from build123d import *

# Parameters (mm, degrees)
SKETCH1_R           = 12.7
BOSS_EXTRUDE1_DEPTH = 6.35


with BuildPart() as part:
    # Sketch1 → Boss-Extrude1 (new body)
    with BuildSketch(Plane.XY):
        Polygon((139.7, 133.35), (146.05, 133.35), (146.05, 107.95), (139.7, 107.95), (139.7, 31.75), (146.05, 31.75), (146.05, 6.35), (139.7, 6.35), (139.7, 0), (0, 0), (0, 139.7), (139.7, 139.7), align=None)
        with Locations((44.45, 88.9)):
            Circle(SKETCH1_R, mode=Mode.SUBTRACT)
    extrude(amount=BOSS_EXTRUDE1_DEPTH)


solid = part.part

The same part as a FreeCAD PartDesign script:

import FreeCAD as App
import Part
import Sketcher

V = App.Vector
Q = App.Units.Quantity


def add_polygon(sketch, points):
    """Adds a closed chain of lines whose ends are joined by coincident constraints."""
    first, n = sketch.GeometryCount, len(points)
    for a, b in zip(points, points[1:] + points[:1]):
        sketch.addGeometry(Part.LineSegment(App.Vector(*a, 0), App.Vector(*b, 0)), False)
    for i in range(n):
        sketch.addConstraint(Sketcher.Constraint("Coincident", first + i, 2, first + (i + 1) % n, 1))

doc = App.newDocument("Part")
body = doc.addObject("PartDesign::Body", "Body")

# Sketch on XY plane
sketch1 = body.newObject("Sketcher::SketchObject", "Sketch")
sketch1.AttachmentSupport = (doc.getObject("XY_Plane"), [""])
sketch1.MapMode = "FlatFace"
add_polygon(sketch1, [(146, 133), (140, 133), (140, 140), (0, 140), (0, 0), (140, 0), (140, 6), (146, 6), (146, 32), (140, 32), (140, 108), (146, 108)])  # lines 0-11
sketch1.addGeometry(Part.Circle(V(44, 89, 0), V(0, 0, 1), 13), False)  # 12
sketch1.addConstraint([
    Sketcher.Constraint("Horizontal", 0),
    Sketcher.Constraint("Vertical", 1),
    Sketcher.Constraint("Horizontal", 2),
    Sketcher.Constraint("Vertical", 3),
    Sketcher.Constraint("Horizontal", 4),
    Sketcher.Constraint("Vertical", 5),
    Sketcher.Constraint("Horizontal", 6),
    Sketcher.Constraint("Vertical", 7),
    Sketcher.Constraint("Horizontal", 8),
    Sketcher.Constraint("Vertical", 9),
    Sketcher.Constraint("Horizontal", 10),
    Sketcher.Constraint("Vertical", 11),
    Sketcher.Constraint("Coincident", 3, 2, -1, 1),
    Sketcher.Constraint("Vertical", 1, 2, 4, 2),
    Sketcher.Constraint("Vertical", 5, 2, 8, 2),
    Sketcher.Constraint("Vertical", 7, 2, 10, 2),
    Sketcher.Constraint("Equal", 10, 1),
    Sketcher.Constraint("Equal", 4, 3),
    Sketcher.Constraint("Equal", 1, 5),
    Sketcher.Constraint("Equal", 7, 11),
    Sketcher.Constraint("Diameter", 12, Q("1 in")),
    Sketcher.Constraint("DistanceY", 7, 1, 7, 2, Q("1 in")),
    Sketcher.Constraint("DistanceY", 9, 1, 9, 2, Q("3 in")),
    Sketcher.Constraint("DistanceX", 2, 2, 2, 1, Q("5.5 in")),
    Sketcher.Constraint("DistanceY", 12, 3, 1, 2, Q("2 in")),
    Sketcher.Constraint("DistanceX", 12, 3, 6, 2, Q("4 in")),
])
pad1 = body.newObject("PartDesign::Pad", "Pad")
pad1.Profile = sketch1
pad1.Length = Q("0.25 in")

doc.recompute()
